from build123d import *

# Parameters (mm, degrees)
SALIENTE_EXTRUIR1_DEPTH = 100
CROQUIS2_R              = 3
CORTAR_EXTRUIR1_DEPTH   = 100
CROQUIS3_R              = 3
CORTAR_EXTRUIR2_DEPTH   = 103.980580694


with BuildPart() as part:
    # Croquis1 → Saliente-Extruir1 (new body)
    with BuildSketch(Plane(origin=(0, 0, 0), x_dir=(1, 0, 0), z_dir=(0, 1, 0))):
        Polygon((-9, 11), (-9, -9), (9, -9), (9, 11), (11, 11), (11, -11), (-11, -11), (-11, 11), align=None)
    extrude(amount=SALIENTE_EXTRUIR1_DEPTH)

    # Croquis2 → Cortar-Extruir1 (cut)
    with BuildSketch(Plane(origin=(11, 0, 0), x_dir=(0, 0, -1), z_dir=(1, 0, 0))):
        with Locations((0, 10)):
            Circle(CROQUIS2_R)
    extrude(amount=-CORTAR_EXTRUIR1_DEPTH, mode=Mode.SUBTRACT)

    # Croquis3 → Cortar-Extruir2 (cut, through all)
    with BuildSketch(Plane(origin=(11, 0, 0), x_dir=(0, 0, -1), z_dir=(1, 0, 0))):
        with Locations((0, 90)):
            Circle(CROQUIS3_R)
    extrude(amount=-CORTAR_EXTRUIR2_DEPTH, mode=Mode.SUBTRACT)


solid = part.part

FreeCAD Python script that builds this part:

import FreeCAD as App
import Part
import Sketcher

V = App.Vector

doc = App.newDocument("Part")
body = doc.addObject("PartDesign::Body", "Body")

sketch1 = doc.addObject("Sketcher::SketchObject", "Sketch")
body.addObject(sketch1)
sketch1.AttachmentSupport = (doc.XZ_Plane, [""])
sketch1.MapMode = "FlatFace"
sketch1.addGeometry([
    Part.LineSegment(V(-9, 9, 0), V(-9, -11, 0)),
    Part.LineSegment(V(-9, -11, 0), V(-11, -11, 0)),
    Part.LineSegment(V(-11, -11, 0), V(-11, 11, 0)),
    Part.LineSegment(V(-11, 11, 0), V(11, 11, 0)),
    Part.LineSegment(V(11, 11, 0), V(11, -11, 0)),
    Part.LineSegment(V(11, -11, 0), V(9, -11, 0)),
    Part.LineSegment(V(9, -11, 0), V(9, 9, 0)),
    Part.LineSegment(V(9, 9, 0), V(-9, 9, 0)),
], False)
sketch1.addConstraint([
    Sketcher.Constraint("Coincident", 0, 2, 1, 1),
    Sketcher.Constraint("Coincident", 1, 2, 2, 1),
    Sketcher.Constraint("Coincident", 2, 2, 3, 1),
    Sketcher.Constraint("Coincident", 3, 2, 4, 1),
    Sketcher.Constraint("Coincident", 4, 2, 5, 1),
    Sketcher.Constraint("Coincident", 5, 2, 6, 1),
    Sketcher.Constraint("Coincident", 6, 2, 7, 1),
    Sketcher.Constraint("Coincident", 7, 2, 0, 1),
    Sketcher.Constraint("Vertical", 0),
    Sketcher.Constraint("Horizontal", 1),
    Sketcher.Constraint("Vertical", 2),
    Sketcher.Constraint("Horizontal", 3),
    Sketcher.Constraint("Vertical", 4),
    Sketcher.Constraint("Horizontal", 5),
    Sketcher.Constraint("Vertical", 6),
    Sketcher.Constraint("Horizontal", 7),
    Sketcher.Constraint("Symmetric", 1, 2, 3, 2, -1, 1),
    Sketcher.Constraint("Symmetric", 0, 2, 5, 2, -2),
    Sketcher.Constraint("Equal", 3, 2),
    Sketcher.Constraint("DistanceX", 1, 2, 1, 1, 2.0),
    Sketcher.Constraint("DistanceX", 3, 1, 3, 2, 22.0),
    Sketcher.Constraint("DistanceY", 0, 2, 0, 1, 20.0),
])
pad1 = doc.addObject("PartDesign::Pad", "Pad")
body.addObject(pad1)
pad1.Profile = sketch1
pad1.Length = 100
pad1.Reversed = True

sketch2 = doc.addObject("Sketcher::SketchObject", "Sketch001")
body.addObject(sketch2)
sketch2.AttachmentSupport = (doc.YZ_Plane, [""])
sketch2.MapMode = "FlatFace"
sketch2.AttachmentOffset = App.Placement(V(0, 0, 11), App.Rotation())
sketch2.addGeometry(Part.Circle(V(10, 0, 0), V(0, 0, 1), 3), False)
sketch2.addConstraint([
    Sketcher.Constraint("PointOnObject", 0, 3, -1),
    Sketcher.Constraint("Diameter", 0, 6.0),
    Sketcher.Constraint("DistanceX", -1, 1, 0, 3, 10.0),
])
pocket1 = doc.addObject("PartDesign::Pocket", "Pocket")
body.addObject(pocket1)
pocket1.Profile = sketch2
pocket1.Length = 100

sketch3 = doc.addObject("Sketcher::SketchObject", "Sketch002")
body.addObject(sketch3)
sketch3.AttachmentSupport = (doc.YZ_Plane, [""])
sketch3.MapMode = "FlatFace"
sketch3.AttachmentOffset = App.Placement(V(0, 0, 11), App.Rotation())
sketch3.addGeometry(Part.Circle(V(90, 0, 0), V(0, 0, 1), 3), False)
sketch3.addConstraint([
    Sketcher.Constraint("PointOnObject", 0, 3, -1),
    Sketcher.Constraint("Diameter", 0, 6.0),
    Sketcher.Constraint("DistanceX", -1, 1, 0, 3, 90.0),
])
pocket2 = doc.addObject("PartDesign::Pocket", "Pocket001")
body.addObject(pocket2)
pocket2.Profile = sketch3
pocket2.Type = "ThroughAll"

doc.recompute()
